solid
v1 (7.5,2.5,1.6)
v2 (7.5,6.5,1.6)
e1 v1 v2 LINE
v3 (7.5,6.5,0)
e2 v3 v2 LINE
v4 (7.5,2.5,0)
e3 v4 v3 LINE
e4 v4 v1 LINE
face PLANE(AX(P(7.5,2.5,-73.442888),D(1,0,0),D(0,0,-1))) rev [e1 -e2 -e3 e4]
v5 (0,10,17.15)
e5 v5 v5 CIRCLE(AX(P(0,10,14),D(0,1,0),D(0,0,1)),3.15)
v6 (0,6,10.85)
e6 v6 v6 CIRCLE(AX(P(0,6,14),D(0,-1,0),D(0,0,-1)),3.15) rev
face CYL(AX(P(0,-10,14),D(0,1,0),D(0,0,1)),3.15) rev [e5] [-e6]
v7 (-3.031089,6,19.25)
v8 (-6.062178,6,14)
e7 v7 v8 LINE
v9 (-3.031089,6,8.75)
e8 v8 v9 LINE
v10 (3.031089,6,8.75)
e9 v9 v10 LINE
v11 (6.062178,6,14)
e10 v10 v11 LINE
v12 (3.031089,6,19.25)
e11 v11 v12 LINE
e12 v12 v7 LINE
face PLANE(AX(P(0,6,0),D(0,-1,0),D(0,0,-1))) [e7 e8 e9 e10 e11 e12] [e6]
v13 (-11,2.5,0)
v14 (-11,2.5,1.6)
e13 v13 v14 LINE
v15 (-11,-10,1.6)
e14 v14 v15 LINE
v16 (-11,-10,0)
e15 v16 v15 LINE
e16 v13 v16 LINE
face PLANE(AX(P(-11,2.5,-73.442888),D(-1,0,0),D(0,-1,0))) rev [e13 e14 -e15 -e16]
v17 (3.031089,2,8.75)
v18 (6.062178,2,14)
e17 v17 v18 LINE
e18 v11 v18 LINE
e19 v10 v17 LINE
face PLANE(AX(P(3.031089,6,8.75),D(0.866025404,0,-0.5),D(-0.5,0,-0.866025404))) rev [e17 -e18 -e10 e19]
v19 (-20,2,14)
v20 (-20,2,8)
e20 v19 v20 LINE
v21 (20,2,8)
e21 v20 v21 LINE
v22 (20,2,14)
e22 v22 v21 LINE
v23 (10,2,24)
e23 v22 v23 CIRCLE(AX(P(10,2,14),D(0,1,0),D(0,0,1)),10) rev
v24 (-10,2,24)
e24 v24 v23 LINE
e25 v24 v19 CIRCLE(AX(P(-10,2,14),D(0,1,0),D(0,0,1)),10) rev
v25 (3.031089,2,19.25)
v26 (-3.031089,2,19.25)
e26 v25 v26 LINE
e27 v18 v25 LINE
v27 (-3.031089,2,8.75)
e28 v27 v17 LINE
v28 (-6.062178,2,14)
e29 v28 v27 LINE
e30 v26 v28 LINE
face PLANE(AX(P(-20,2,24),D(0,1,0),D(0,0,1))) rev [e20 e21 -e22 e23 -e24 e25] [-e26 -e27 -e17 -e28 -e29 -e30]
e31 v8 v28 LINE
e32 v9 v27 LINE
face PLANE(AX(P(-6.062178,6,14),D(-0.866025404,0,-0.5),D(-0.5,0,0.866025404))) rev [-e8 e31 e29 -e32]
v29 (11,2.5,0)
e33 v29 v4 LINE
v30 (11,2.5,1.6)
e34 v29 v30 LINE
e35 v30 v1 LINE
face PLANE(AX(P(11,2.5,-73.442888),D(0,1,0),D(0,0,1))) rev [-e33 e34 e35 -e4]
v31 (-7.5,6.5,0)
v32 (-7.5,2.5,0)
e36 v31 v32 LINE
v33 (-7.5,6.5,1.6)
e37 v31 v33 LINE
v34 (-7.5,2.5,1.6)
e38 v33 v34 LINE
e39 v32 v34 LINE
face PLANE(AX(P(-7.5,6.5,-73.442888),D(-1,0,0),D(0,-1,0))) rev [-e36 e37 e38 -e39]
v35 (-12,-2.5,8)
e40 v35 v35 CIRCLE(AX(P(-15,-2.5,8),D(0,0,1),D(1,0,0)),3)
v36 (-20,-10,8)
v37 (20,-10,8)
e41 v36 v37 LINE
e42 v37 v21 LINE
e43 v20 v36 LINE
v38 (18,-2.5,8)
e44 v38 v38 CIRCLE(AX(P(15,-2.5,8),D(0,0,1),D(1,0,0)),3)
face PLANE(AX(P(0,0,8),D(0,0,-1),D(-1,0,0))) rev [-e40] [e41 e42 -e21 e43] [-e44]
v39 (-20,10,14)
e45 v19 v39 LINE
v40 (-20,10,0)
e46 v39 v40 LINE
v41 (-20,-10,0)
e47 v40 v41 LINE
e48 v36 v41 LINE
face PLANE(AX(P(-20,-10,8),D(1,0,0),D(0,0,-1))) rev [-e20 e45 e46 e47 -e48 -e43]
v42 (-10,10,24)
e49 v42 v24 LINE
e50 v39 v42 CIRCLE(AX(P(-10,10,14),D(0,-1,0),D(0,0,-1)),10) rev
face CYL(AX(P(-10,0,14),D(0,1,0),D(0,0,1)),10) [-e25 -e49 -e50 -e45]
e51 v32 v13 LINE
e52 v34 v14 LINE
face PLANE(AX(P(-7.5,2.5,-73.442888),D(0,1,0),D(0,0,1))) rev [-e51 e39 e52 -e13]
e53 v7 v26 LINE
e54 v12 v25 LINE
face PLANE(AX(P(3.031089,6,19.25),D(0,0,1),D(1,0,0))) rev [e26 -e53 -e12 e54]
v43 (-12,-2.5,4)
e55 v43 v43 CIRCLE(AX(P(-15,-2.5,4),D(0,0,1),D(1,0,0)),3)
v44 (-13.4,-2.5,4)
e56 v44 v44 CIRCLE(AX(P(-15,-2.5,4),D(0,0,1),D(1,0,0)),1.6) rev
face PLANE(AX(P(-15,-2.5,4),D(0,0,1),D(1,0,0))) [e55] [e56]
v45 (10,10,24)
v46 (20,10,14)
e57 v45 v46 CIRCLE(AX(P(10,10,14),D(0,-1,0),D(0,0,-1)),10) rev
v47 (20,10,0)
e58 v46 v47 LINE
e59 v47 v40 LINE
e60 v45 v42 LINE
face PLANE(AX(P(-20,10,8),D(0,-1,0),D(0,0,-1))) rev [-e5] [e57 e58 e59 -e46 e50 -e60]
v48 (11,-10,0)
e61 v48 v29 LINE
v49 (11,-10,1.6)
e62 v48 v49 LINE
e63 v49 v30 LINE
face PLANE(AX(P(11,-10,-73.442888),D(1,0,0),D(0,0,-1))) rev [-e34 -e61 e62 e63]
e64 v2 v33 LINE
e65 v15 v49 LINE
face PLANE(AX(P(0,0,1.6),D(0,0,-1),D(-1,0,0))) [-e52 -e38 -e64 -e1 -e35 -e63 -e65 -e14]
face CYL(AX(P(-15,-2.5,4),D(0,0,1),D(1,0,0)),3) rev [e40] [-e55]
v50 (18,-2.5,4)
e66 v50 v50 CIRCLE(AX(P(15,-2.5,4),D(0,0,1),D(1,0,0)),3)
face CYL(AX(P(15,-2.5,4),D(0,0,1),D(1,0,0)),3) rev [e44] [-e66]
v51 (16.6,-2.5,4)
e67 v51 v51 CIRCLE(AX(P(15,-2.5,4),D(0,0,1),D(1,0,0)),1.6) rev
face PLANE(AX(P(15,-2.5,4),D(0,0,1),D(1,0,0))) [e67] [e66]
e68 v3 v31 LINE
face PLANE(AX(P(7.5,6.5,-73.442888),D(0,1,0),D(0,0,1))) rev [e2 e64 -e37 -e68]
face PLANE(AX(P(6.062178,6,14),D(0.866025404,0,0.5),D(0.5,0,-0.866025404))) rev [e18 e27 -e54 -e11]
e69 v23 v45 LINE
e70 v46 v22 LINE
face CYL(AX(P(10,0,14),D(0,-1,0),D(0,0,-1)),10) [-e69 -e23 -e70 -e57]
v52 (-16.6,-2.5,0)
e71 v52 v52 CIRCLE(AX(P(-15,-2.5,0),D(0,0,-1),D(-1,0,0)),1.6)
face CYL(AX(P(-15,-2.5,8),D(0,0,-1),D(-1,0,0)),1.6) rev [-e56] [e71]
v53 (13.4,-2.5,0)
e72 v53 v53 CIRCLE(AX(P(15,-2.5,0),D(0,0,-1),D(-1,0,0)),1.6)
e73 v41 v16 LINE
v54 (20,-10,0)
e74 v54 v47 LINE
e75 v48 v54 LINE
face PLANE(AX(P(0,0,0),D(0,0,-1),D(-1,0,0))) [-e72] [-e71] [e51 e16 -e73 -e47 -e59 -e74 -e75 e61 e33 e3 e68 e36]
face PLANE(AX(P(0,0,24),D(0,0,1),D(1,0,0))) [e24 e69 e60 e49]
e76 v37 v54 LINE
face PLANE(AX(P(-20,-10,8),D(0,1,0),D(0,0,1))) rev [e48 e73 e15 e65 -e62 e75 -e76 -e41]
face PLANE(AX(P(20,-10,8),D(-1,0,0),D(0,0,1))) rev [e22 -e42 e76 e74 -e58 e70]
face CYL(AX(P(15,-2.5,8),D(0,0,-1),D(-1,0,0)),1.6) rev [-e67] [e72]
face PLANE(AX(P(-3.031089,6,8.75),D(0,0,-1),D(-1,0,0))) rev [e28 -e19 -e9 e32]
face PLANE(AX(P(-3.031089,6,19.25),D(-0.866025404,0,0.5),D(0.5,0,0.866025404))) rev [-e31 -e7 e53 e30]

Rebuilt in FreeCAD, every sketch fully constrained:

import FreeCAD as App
import Part
import Sketcher
Q = App.Units.Quantity


def edges_at(feature, points):
    """Names of the edges that pass closest to the given points."""
    edges = feature.Shape.Edges
    near = lambda p: min(range(len(edges)), key=lambda i: edges[i].distToShape(Part.Vertex(*p))[0])
    return sorted({f"Edge{near(p) + 1}" for p in points})

doc = App.newDocument("Part")
body = doc.addObject("PartDesign::Body", "Body")

# Sketch on XY plane
sketch1 = body.newObject("Sketcher::SketchObject", "Sketch")
sketch1.AttachmentSupport = (doc.getObject("XY_Plane"), [""])
sketch1.MapMode = "FlatFace"
sketch1.addGeometry(Part.LineSegment(App.Vector(-20, 10, 0), App.Vector(-20, -10, 0)), False)
sketch1.addGeometry(Part.LineSegment(App.Vector(-20, -10, 0), App.Vector(20, -10, 0)), False)
sketch1.addGeometry(Part.LineSegment(App.Vector(20, -10, 0), App.Vector(20, 10, 0)), False)
sketch1.addGeometry(Part.LineSegment(App.Vector(20, 10, 0), App.Vector(-20, 10, 0)), False)
sketch1.addConstraint(Sketcher.Constraint("Coincident", 0, 2, 1, 1))
sketch1.addConstraint(Sketcher.Constraint("Coincident", 1, 2, 2, 1))
sketch1.addConstraint(Sketcher.Constraint("Coincident", 2, 2, 3, 1))
sketch1.addConstraint(Sketcher.Constraint("Coincident", 3, 2, 0, 1))
sketch1.addConstraint(Sketcher.Constraint("Vertical", 0))
sketch1.addConstraint(Sketcher.Constraint("Horizontal", 1))
sketch1.addConstraint(Sketcher.Constraint("Vertical", 2))
sketch1.addConstraint(Sketcher.Constraint("Horizontal", 3))
sketch1.addConstraint(Sketcher.Constraint("Symmetric", 0, 2, 2, 2, -1, 1))
sketch1.addConstraint(Sketcher.Constraint("DistanceX", 1, 1, 1, 2, 40.0))
sketch1.addConstraint(Sketcher.Constraint("DistanceY", 0, 2, 0, 1, 20.0))
pad1 = body.newObject("PartDesign::Pad", "Pad")
pad1.Profile = sketch1
pad1.Length = 8

# Sketch on XY plane
sketch2 = body.newObject("Sketcher::SketchObject", "Sketch001")
sketch2.AttachmentSupport = (doc.getObject("XY_Plane"), [""])
sketch2.MapMode = "FlatFace"
sketch2.AttachmentOffset = App.Placement(App.Vector(0, 0, 8), App.Rotation())
sketch2.addGeometry(Part.LineSegment(App.Vector(-20, 10, 0), App.Vector(-20, 2, 0)), False)
sketch2.addGeometry(Part.LineSegment(App.Vector(-20, 2, 0), App.Vector(20, 2, 0)), False)
sketch2.addGeometry(Part.LineSegment(App.Vector(20, 2, 0), App.Vector(20, 10, 0)), False)
sketch2.addGeometry(Part.LineSegment(App.Vector(20, 10, 0), App.Vector(-20, 10, 0)), False)
sketch2.addConstraint(Sketcher.Constraint("Coincident", 0, 2, 1, 1))
sketch2.addConstraint(Sketcher.Constraint("Coincident", 1, 2, 2, 1))
sketch2.addConstraint(Sketcher.Constraint("Coincident", 2, 2, 3, 1))
sketch2.addConstraint(Sketcher.Constraint("Coincident", 3, 2, 0, 1))
sketch2.addConstraint(Sketcher.Constraint("Vertical", 0))
sketch2.addConstraint(Sketcher.Constraint("Horizontal", 1))
sketch2.addConstraint(Sketcher.Constraint("Vertical", 2))
sketch2.addConstraint(Sketcher.Constraint("Horizontal", 3))
sketch2.addConstraint(Sketcher.Constraint("DistanceX", 1, 1, 1, 2, 40.0))
sketch2.addConstraint(Sketcher.Constraint("DistanceY", 0, 2, 0, 1, 8.0))
sketch2.addConstraint(Sketcher.Constraint("DistanceX", 0, 2, -1, 1, 20.0))
sketch2.addConstraint(Sketcher.Constraint("DistanceY", -1, 1, 0, 2, 2.0))
pad2 = body.newObject("PartDesign::Pad", "Pad001")
pad2.Profile = sketch2
pad2.Length = 16

# Sketch on XZ plane
sketch3 = body.newObject("Sketcher::SketchObject", "Sketch002")
sketch3.AttachmentSupport = (doc.getObject("XZ_Plane"), [""])
sketch3.MapMode = "FlatFace"
sketch3.AttachmentOffset = App.Placement(App.Vector(0, 0, -10), App.Rotation())
sketch3.addGeometry(Part.Circle(App.Vector(0, 14, 0), App.Vector(0, 0, 1), 3.1), False)
sketch3.addConstraint(Sketcher.Constraint("PointOnObject", 0, 3, -2))
sketch3.addConstraint(Sketcher.Constraint("Diameter", 0, 6.3))
sketch3.addConstraint(Sketcher.Constraint("DistanceY", -1, 1, 0, 3, 14.0))
pocket1 = body.newObject("PartDesign::Pocket", "Pocket")
pocket1.Profile = sketch3
pocket1.Type = "ThroughAll"
pocket1.Reversed = True

# Sketch on XY plane
sketch4 = body.newObject("Sketcher::SketchObject", "Sketch003")
sketch4.AttachmentSupport = (doc.getObject("XY_Plane"), [""])
sketch4.MapMode = "FlatFace"
sketch4.addGeometry(Part.Circle(App.Vector(15, -2.5, 0), App.Vector(0, 0, 1), 1.6), False)
sketch4.addConstraint(Sketcher.Constraint("Diameter", 0, 3.2))
sketch4.addConstraint(Sketcher.Constraint("DistanceX", -1, 1, 0, 3, 15.0))
sketch4.addConstraint(Sketcher.Constraint("DistanceY", 0, 3, -1, 1, 2.5))
pocket2 = body.newObject("PartDesign::Pocket", "Pocket001")
pocket2.Profile = sketch4
pocket2.Length = 8
pocket2.Reversed = True

# Sketch on XY plane
sketch5 = body.newObject("Sketcher::SketchObject", "Sketch004")
sketch5.AttachmentSupport = (doc.getObject("XY_Plane"), [""])
sketch5.MapMode = "FlatFace"
sketch5.addGeometry(Part.Circle(App.Vector(-15, -2.5, 0), App.Vector(0, 0, 1), 1.6), False)
sketch5.addConstraint(Sketcher.Constraint("Diameter", 0, 3.2))
sketch5.addConstraint(Sketcher.Constraint("DistanceX", 0, 3, -1, 1, 15.0))
sketch5.addConstraint(Sketcher.Constraint("DistanceY", 0, 3, -1, 1, 2.5))
pocket3 = body.newObject("PartDesign::Pocket", "Pocket002")
pocket3.Profile = sketch5
pocket3.Length = 8
pocket3.Reversed = True

# Sketch on XY plane
sketch6 = body.newObject("Sketcher::SketchObject", "Sketch005")
sketch6.AttachmentSupport = (doc.getObject("XY_Plane"), [""])
sketch6.MapMode = "FlatFace"
sketch6.addGeometry(Part.LineSegment(App.Vector(11, 2.5, 0), App.Vector(11, -261.4, 0)), False)
sketch6.addGeometry(Part.LineSegment(App.Vector(11, -261.4, 0), App.Vector(-11, -261.4, 0)), False)
sketch6.addGeometry(Part.LineSegment(App.Vector(-11, -261.4, 0), App.Vector(-11, 2.5, 0)), False)
sketch6.addGeometry(Part.LineSegment(App.Vector(-11, 2.5, 0), App.Vector(-7.5, 2.5, 0)), False)
sketch6.addGeometry(Part.LineSegment(App.Vector(-7.5, 2.5, 0), App.Vector(-7.5, 6.5, 0)), False)
sketch6.addGeometry(Part.LineSegment(App.Vector(-7.5, 6.5, 0), App.Vector(7.5, 6.5, 0)), False)
sketch6.addGeometry(Part.LineSegment(App.Vector(7.5, 6.5, 0), App.Vector(7.5, 2.5, 0)), False)
sketch6.addGeometry(Part.LineSegment(App.Vector(7.5, 2.5, 0), App.Vector(11, 2.5, 0)), False)
sketch6.addConstraint(Sketcher.Constraint("Coincident", 0, 2, 1, 1))
sketch6.addConstraint(Sketcher.Constraint("Coincident", 1, 2, 2, 1))
sketch6.addConstraint(Sketcher.Constraint("Coincident", 2, 2, 3, 1))
sketch6.addConstraint(Sketcher.Constraint("Coincident", 3, 2, 4, 1))
sketch6.addConstraint(Sketcher.Constraint("Coincident", 4, 2, 5, 1))
sketch6.addConstraint(Sketcher.Constraint("Coincident", 5, 2, 6, 1))
sketch6.addConstraint(Sketcher.Constraint("Coincident", 6, 2, 7, 1))
sketch6.addConstraint(Sketcher.Constraint("Coincident", 7, 2, 0, 1))
sketch6.addConstraint(Sketcher.Constraint("Vertical", 0))
sketch6.addConstraint(Sketcher.Constraint("Horizontal", 1))
sketch6.addConstraint(Sketcher.Constraint("Vertical", 2))
sketch6.addConstraint(Sketcher.Constraint("Horizontal", 3))
sketch6.addConstraint(Sketcher.Constraint("Vertical", 4))
sketch6.addConstraint(Sketcher.Constraint("Horizontal", 5))
sketch6.addConstraint(Sketcher.Constraint("Vertical", 6))
sketch6.addConstraint(Sketcher.Constraint("Horizontal", 7))
sketch6.addConstraint(Sketcher.Constraint("Symmetric", 3, 2, 6, 2, -2))
sketch6.addConstraint(Sketcher.Constraint("Equal", 3, 7))
sketch6.addConstraint(Sketcher.Constraint("DistanceX", 1, 2, 1, 1, 22.0))
sketch6.addConstraint(Sketcher.Constraint("DistanceX", 5, 1, 5, 2, 15.0))
sketch6.addConstraint(Sketcher.Constraint("DistanceY", 4, 1, 4, 2, 4.0))
sketch6.addConstraint(Sketcher.Constraint("DistanceY", -1, 1, 2, 2, 2.5))
sketch6.addConstraint(Sketcher.Constraint("DistanceY", 0, 2, 0, 1, 263.850401))
pocket4 = body.newObject("PartDesign::Pocket", "Pocket003")
pocket4.Profile = sketch6
pocket4.Type = "TwoLengths"
pocket4.Length = 33.802439
pocket4.Length2 = 1.6

# Sketch on XY plane
sketch7 = body.newObject("Sketcher::SketchObject", "Sketch006")
sketch7.AttachmentSupport = (doc.getObject("XY_Plane"), [""])
sketch7.MapMode = "FlatFace"
sketch7.AttachmentOffset = App.Placement(App.Vector(0, 0, 8), App.Rotation())
sketch7.addGeometry(Part.Circle(App.Vector(-15, -2.5, 0), App.Vector(0, 0, 1), 3), False)
sketch7.addConstraint(Sketcher.Constraint("Diameter", 0, 6.0))
sketch7.addConstraint(Sketcher.Constraint("DistanceX", 0, 3, -1, 1, 15.0))
sketch7.addConstraint(Sketcher.Constraint("DistanceY", 0, 3, -1, 1, 2.5))
pocket5 = body.newObject("PartDesign::Pocket", "Pocket004")
pocket5.Profile = sketch7
pocket5.Length = 4

# Sketch on XY plane
sketch8 = body.newObject("Sketcher::SketchObject", "Sketch007")
sketch8.AttachmentSupport = (doc.getObject("XY_Plane"), [""])
sketch8.MapMode = "FlatFace"
sketch8.AttachmentOffset = App.Placement(App.Vector(0, 0, 8), App.Rotation())
sketch8.addGeometry(Part.Circle(App.Vector(15, -2.5, 0), App.Vector(0, 0, 1), 3), False)
sketch8.addConstraint(Sketcher.Constraint("Diameter", 0, 6.0))
sketch8.addConstraint(Sketcher.Constraint("DistanceX", -1, 1, 0, 3, 15.0))
sketch8.addConstraint(Sketcher.Constraint("DistanceY", 0, 3, -1, 1, 2.5))
pocket6 = body.newObject("PartDesign::Pocket", "Pocket005")
pocket6.Profile = sketch8
pocket6.Length = 4

# Sketch on XZ plane
sketch9 = body.newObject("Sketcher::SketchObject", "Sketch008")
sketch9.AttachmentSupport = (doc.getObject("XZ_Plane"), [""])
sketch9.MapMode = "FlatFace"
sketch9.AttachmentOffset = App.Placement(App.Vector(0, 0, -2), App.Rotation())
sketch9.addGeometry(Part.LineSegment(App.Vector(6, 14, 0), App.Vector(3, 19, 0)), False)
sketch9.addGeometry(Part.LineSegment(App.Vector(3, 19, 0), App.Vector(-3, 19, 0)), False)
sketch9.addGeometry(Part.LineSegment(App.Vector(-3, 19, 0), App.Vector(-6, 14, 0)), False)
sketch9.addGeometry(Part.LineSegment(App.Vector(-6, 14, 0), App.Vector(-3, 9, 0)), False)
sketch9.addGeometry(Part.LineSegment(App.Vector(-3, 9, 0), App.Vector(3, 9, 0)), False)
sketch9.addGeometry(Part.LineSegment(App.Vector(3, 9, 0), App.Vector(6, 14, 0)), False)
sketch9.addConstraint(Sketcher.Constraint("Coincident", 0, 2, 1, 1))
sketch9.addConstraint(Sketcher.Constraint("Coincident", 1, 2, 2, 1))
sketch9.addConstraint(Sketcher.Constraint("Coincident", 2, 2, 3, 1))
sketch9.addConstraint(Sketcher.Constraint("Coincident", 3, 2, 4, 1))
sketch9.addConstraint(Sketcher.Constraint("Coincident", 4, 2, 5, 1))
sketch9.addConstraint(Sketcher.Constraint("Coincident", 5, 2, 0, 1))
sketch9.addConstraint(Sketcher.Constraint("Horizontal", 1))
sketch9.addConstraint(Sketcher.Constraint("Horizontal", 4))
sketch9.addConstraint(Sketcher.Constraint("Symmetric", 2, 2, 5, 2, -2))
sketch9.addConstraint(Sketcher.Constraint("Parallel", 0, 3))
sketch9.addConstraint(Sketcher.Constraint("Parallel", 2, 5))
sketch9.addConstraint(Sketcher.Constraint("Vertical", 1, 2, 3, 2))
sketch9.addConstraint(Sketcher.Constraint("Vertical", 0, 2, 4, 2))
sketch9.addConstraint(Sketcher.Constraint("Angle", 0, Q("120 deg")))
sketch9.addConstraint(Sketcher.Constraint("DistanceY", -1, 1, 2, 2, 14.0))
sketch9.addConstraint(Sketcher.Constraint("DistanceY", 3, 2, 1, 2, 10.5))
sketch9.addConstraint(Sketcher.Constraint("DistanceX", 1, 2, 1, 1, 6.062178))
pocket7 = body.newObject("PartDesign::Pocket", "Pocket006")
pocket7.Profile = sketch9
pocket7.Length = 4
doc.recompute()

fillet = body.newObject("PartDesign::Fillet", "Fillet")
fillet.Base = (pocket7, edges_at(pocket7, [(-20, 6, 24), (20, 6, 24)]))
fillet.Radius = 10

doc.recompute()
